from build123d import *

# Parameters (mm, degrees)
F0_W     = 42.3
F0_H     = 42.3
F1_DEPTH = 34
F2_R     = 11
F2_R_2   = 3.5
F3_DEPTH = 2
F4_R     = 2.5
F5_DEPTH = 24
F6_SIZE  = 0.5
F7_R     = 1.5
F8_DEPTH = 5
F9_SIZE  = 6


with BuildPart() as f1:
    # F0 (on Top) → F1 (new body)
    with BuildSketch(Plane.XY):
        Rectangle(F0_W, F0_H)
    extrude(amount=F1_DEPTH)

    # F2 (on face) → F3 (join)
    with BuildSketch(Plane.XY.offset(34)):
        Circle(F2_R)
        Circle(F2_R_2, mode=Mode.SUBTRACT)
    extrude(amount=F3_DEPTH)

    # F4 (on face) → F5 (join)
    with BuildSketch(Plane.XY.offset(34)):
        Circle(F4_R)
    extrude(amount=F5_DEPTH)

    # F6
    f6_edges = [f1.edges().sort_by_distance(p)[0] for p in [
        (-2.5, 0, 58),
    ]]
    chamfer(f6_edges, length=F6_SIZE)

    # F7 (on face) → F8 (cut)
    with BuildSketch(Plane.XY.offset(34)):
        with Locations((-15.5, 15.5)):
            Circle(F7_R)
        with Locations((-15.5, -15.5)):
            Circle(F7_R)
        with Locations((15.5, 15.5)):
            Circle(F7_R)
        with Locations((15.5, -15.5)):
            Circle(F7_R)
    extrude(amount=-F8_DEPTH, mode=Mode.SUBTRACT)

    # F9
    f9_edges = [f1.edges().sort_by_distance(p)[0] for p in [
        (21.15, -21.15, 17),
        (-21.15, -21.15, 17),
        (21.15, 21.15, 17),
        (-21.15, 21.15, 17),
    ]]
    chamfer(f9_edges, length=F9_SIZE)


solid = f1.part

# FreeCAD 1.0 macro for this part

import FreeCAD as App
import Part
import Sketcher
from FreeCAD import Vector


def edges_at(feature, points):
    """Names of the edges that pass closest to the given points."""
    edges = feature.Shape.Edges
    near = lambda p: min(range(len(edges)), key=lambda i: edges[i].distToShape(Part.Vertex(*p))[0])
    return sorted({f"Edge{near(p) + 1}" for p in points})


def add_polygon(sketch, points):
    """Adds a closed chain of lines whose ends are joined by coincident constraints."""
    first, n = sketch.GeometryCount, len(points)
    for a, b in zip(points, points[1:] + points[:1]):
        sketch.addGeometry(Part.LineSegment(App.Vector(*a, 0), App.Vector(*b, 0)), False)
    for i in range(n):
        sketch.addConstraint(Sketcher.Constraint("Coincident", first + i, 2, first + (i + 1) % n, 1))

doc = App.newDocument("Part")
body = doc.addObject("PartDesign::Body", "Body")

sketch1 = body.newObject("Sketcher::SketchObject", "Sketch")
sketch1.AttachmentSupport = (doc.getObject("XY_Plane"), [""])
sketch1.MapMode = "FlatFace"
add_polygon(sketch1, [(-21, 21), (-21, -21), (21, -21), (21, 21)])
sketch1.addConstraint([
    Sketcher.Constraint("Vertical", 0),
    Sketcher.Constraint("Horizontal", 1),
    Sketcher.Constraint("Vertical", 2),
    Sketcher.Constraint("Horizontal", 3),
    Sketcher.Constraint("Symmetric", 0, 2, 2, 2, -1, 1),
    Sketcher.Constraint("Equal", 3, 0),
    Sketcher.Constraint("DistanceX", 1, 1, 1, 2, 42.3),
])
pad1 = body.newObject("PartDesign::Pad", "Pad")
pad1.Profile = sketch1
pad1.Length = 34

sketch2 = body.newObject("Sketcher::SketchObject", "Sketch001")
sketch2.AttachmentSupport = (doc.getObject("XY_Plane"), [""])
sketch2.MapMode = "FlatFace"
sketch2.AttachmentOffset = App.Placement(Vector(0, 0, 34), App.Rotation())
sketch2.addGeometry([
    Part.Circle(Vector(0, 0, 0), Vector(0, 0, 1), 11),
    Part.Circle(Vector(0, 0, 0), Vector(0, 0, 1), 3.5),
], False)
sketch2.addConstraint([
    Sketcher.Constraint("Coincident", 0, 3, -1, 1),
    Sketcher.Constraint("Coincident", 1, 3, -1, 1),
    Sketcher.Constraint("Diameter", 0, 22.0),
    Sketcher.Constraint("Diameter", 1, 7.0),
])
pad2 = body.newObject("PartDesign::Pad", "Pad001")
pad2.Profile = sketch2
pad2.Length = 2

sketch3 = body.newObject("Sketcher::SketchObject", "Sketch002")
sketch3.AttachmentSupport = (doc.getObject("XY_Plane"), [""])
sketch3.MapMode = "FlatFace"
sketch3.AttachmentOffset = App.Placement(Vector(0, 0, 34), App.Rotation())
sketch3.addGeometry(Part.Circle(Vector(0, 0, 0), Vector(0, 0, 1), 2.5), False)
sketch3.addConstraint([
    Sketcher.Constraint("Coincident", 0, 3, -1, 1),
    Sketcher.Constraint("Diameter", 0, 5.0),
])
pad3 = body.newObject("PartDesign::Pad", "Pad002")
pad3.Profile = sketch3
pad3.Length = 24
doc.recompute()

chamfer = body.newObject("PartDesign::Chamfer", "Chamfer")
chamfer.Base = (pad3, edges_at(pad3, [(-2.5, 0, 58)]))
chamfer.Size = 0.5

sketch4 = body.newObject("Sketcher::SketchObject", "Sketch003")
sketch4.AttachmentSupport = (doc.getObject("XY_Plane"), [""])
sketch4.MapMode = "FlatFace"
sketch4.AttachmentOffset = App.Placement(Vector(0, 0, 34), App.Rotation())
sketch4.addGeometry([
    Part.Circle(Vector(-15.5, 15.5, 0), Vector(0, 0, 1), 1.5),
    Part.Circle(Vector(-15.5, -15.5, 0), Vector(0, 0, 1), 1.5),
    Part.Circle(Vector(15.5, 15.5, 0), Vector(0, 0, 1), 1.5),
    Part.Circle(Vector(15.5, -15.5, 0), Vector(0, 0, 1), 1.5),
], False)
sketch4.addConstraint([
    Sketcher.Constraint("Equal", 0, 1),
    Sketcher.Constraint("Equal", 1, 2),
    Sketcher.Constraint("Equal", 2, 3),
    Sketcher.Constraint("Symmetric", 1, 3, 2, 3, -1, 1),
    Sketcher.Constraint("Symmetric", 0, 3, 3, 3, -1, 1),
    Sketcher.Constraint("Symmetric", 0, 3, 2, 3, -2),
    Sketcher.Constraint("Diameter", 0, 3.0),
    Sketcher.Constraint("DistanceY", 1, 3, 0, 3, 31.0),
    Sketcher.Constraint("DistanceX", 0, 3, 2, 3, 31.0),
])
pocket1 = body.newObject("PartDesign::Pocket", "Pocket")
pocket1.Profile = sketch4
pocket1.Length = 5
doc.recompute()

chamfer2 = body.newObject("PartDesign::Chamfer", "Chamfer001")
chamfer2.Base = (pocket1, edges_at(pocket1, [
    (21.15, -21.15, 17),
    (-21.15, -21.15, 17),
    (21.15, 21.15, 17),
    (-21.15, 21.15, 17),
]))
chamfer2.Size = 6

doc.recompute()
